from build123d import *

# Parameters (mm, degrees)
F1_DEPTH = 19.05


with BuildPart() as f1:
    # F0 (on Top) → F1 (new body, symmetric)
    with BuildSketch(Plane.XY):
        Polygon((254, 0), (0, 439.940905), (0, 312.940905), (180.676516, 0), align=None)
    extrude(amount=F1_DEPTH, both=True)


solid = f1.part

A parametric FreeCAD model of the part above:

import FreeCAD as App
import Part
import Sketcher

V = App.Vector
Q = App.Units.Quantity

doc = App.newDocument("Part")
params = doc.addObject("Spreadsheet::Sheet", "Params")
for row, (alias, value) in enumerate([
    ("sketch1_height", "5 in"),
    ("sketch1_length", "20 in"),
    ("pad1_length", "1.5 in"),
], start=1):
    params.set(f"A{row}", alias)
    params.set(f"B{row}", "=" + value)
    params.setAlias(f"B{row}", alias)

body = doc.addObject("PartDesign::Body", "Body")

sketch1 = doc.addObject("Sketcher::SketchObject", "Sketch")
body.addObject(sketch1)
sketch1.AttachmentSupport = (doc.XY_Plane, [""])
sketch1.MapMode = "FlatFace"
sketch1.addGeometry([
    Part.LineSegment(V(254, 0, 0), V(0, 440, 0)),
    Part.LineSegment(V(0, 440, 0), V(0, 313, 0)),
    Part.LineSegment(V(0, 313, 0), V(181, 0, 0)),
    Part.LineSegment(V(181, 0, 0), V(254, 0, 0)),
], False)
sketch1.addConstraint([
    Sketcher.Constraint("Coincident", 0, 2, 1, 1),
    Sketcher.Constraint("Coincident", 1, 2, 2, 1),
    Sketcher.Constraint("Coincident", 2, 2, 3, 1),
    Sketcher.Constraint("Coincident", 3, 2, 0, 1),
    Sketcher.Constraint("Vertical", 1),
    Sketcher.Constraint("Horizontal", 3),
    Sketcher.Constraint("PointOnObject", 0, 2, -2),
    Sketcher.Constraint("PointOnObject", 2, 2, -1),
    Sketcher.Constraint("Parallel", 0, 2),
    Sketcher.Constraint("DistanceY", 1, 2, 1, 1, Q("5 in")),
    Sketcher.Constraint("Distance", 0, Q("20 in")),
    Sketcher.Constraint("DistanceX", -1, 1, 3, 2, Q("10 in")),
])
sketch1.setExpression("Constraints[9]", "Params.sketch1_height")
sketch1.setExpression("Constraints[10]", "Params.sketch1_length")
pad1 = doc.addObject("PartDesign::Pad", "Pad")
body.addObject(pad1)
pad1.Profile = sketch1
pad1.setExpression("Length", "Params.pad1_length")
pad1.Midplane = True

doc.recompute()
